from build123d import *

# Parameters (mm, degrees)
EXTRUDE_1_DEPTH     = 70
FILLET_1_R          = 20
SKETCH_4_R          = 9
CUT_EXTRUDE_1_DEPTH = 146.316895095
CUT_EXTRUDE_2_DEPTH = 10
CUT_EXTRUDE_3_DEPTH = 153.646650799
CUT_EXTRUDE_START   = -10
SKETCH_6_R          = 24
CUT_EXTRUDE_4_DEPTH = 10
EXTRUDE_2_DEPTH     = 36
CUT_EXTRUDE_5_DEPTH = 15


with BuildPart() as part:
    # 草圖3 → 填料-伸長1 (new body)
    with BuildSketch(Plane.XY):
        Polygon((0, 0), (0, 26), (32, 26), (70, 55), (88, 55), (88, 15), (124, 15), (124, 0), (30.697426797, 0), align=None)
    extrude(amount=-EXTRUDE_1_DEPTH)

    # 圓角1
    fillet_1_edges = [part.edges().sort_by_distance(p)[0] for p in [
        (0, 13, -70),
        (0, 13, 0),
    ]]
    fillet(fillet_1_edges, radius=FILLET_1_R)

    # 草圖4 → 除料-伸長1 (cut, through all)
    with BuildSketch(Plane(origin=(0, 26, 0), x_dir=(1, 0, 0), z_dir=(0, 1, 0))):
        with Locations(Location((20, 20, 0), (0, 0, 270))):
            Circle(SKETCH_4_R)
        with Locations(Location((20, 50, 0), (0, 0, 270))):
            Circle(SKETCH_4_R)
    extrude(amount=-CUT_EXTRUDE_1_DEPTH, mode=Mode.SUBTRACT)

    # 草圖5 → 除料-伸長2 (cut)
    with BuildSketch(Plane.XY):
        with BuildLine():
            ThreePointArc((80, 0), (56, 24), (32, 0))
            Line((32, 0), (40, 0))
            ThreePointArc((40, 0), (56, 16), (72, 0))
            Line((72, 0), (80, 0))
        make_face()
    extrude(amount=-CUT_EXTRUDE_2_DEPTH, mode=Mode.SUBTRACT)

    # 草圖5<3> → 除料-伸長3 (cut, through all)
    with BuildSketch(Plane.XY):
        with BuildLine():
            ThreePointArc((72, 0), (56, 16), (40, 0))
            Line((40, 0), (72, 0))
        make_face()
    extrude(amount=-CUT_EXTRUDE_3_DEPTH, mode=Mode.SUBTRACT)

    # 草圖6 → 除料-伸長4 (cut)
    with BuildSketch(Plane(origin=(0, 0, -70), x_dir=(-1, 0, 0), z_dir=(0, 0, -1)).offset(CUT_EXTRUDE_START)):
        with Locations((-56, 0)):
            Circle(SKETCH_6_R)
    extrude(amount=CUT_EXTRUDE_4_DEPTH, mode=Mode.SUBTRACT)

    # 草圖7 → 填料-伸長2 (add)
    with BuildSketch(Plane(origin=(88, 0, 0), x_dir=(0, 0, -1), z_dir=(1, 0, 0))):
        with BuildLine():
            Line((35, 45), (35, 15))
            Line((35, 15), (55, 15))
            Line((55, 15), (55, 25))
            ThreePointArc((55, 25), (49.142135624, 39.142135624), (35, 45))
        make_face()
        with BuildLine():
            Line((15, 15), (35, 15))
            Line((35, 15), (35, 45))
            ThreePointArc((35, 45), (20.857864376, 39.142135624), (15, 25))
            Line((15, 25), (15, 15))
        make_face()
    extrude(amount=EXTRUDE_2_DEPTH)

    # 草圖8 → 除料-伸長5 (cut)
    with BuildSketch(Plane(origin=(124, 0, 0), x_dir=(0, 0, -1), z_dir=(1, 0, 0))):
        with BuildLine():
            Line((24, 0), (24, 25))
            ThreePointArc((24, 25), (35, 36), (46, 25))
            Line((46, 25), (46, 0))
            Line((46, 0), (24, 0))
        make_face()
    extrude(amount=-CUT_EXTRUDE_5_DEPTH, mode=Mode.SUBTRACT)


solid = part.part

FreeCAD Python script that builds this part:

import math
import FreeCAD as App
import Part
import Sketcher

V = App.Vector
Q = App.Units.Quantity


def edges_at(feature, points):
    """Names of the edges that pass closest to the given points."""
    edges = feature.Shape.Edges
    near = lambda p: min(range(len(edges)), key=lambda i: edges[i].distToShape(Part.Vertex(*p))[0])
    return sorted({f"Edge{near(p) + 1}" for p in points})

doc = App.newDocument("Part")
body = doc.addObject("PartDesign::Body", "Body")

# Sketch on XY plane
sketch1 = doc.addObject("Sketcher::SketchObject", "Sketch")
body.addObject(sketch1)
sketch1.AttachmentSupport = (doc.XY_Plane, [""])
sketch1.MapMode = "FlatFace"
sketch1.addGeometry(Part.LineSegment(V(0, 26, 0), V(0, 0, 0)), False)
sketch1.addGeometry(Part.LineSegment(V(0, 0, 0), V(124, 0, 0)), False)
sketch1.addGeometry(Part.LineSegment(V(124, 0, 0), V(124, 15, 0)), False)
sketch1.addGeometry(Part.LineSegment(V(124, 15, 0), V(88, 15, 0)), False)
sketch1.addGeometry(Part.LineSegment(V(88, 15, 0), V(88, 55, 0)), False)
sketch1.addGeometry(Part.LineSegment(V(88, 55, 0), V(70, 55, 0)), False)
sketch1.addGeometry(Part.LineSegment(V(70, 55, 0), V(32, 26, 0)), False)
sketch1.addGeometry(Part.LineSegment(V(32, 26, 0), V(0, 26, 0)), False)
sketch1.addConstraint(Sketcher.Constraint("Coincident", 0, 2, 1, 1))
sketch1.addConstraint(Sketcher.Constraint("Coincident", 1, 2, 2, 1))
sketch1.addConstraint(Sketcher.Constraint("Coincident", 2, 2, 3, 1))
sketch1.addConstraint(Sketcher.Constraint("Coincident", 3, 2, 4, 1))
sketch1.addConstraint(Sketcher.Constraint("Coincident", 4, 2, 5, 1))
sketch1.addConstraint(Sketcher.Constraint("Coincident", 5, 2, 6, 1))
sketch1.addConstraint(Sketcher.Constraint("Coincident", 6, 2, 7, 1))
sketch1.addConstraint(Sketcher.Constraint("Coincident", 7, 2, 0, 1))
sketch1.addConstraint(Sketcher.Constraint("Vertical", 0))
sketch1.addConstraint(Sketcher.Constraint("Horizontal", 1))
sketch1.addConstraint(Sketcher.Constraint("Vertical", 2))
sketch1.addConstraint(Sketcher.Constraint("Horizontal", 3))
sketch1.addConstraint(Sketcher.Constraint("Vertical", 4))
sketch1.addConstraint(Sketcher.Constraint("Horizontal", 5))
sketch1.addConstraint(Sketcher.Constraint("Horizontal", 7))
sketch1.addConstraint(Sketcher.Constraint("Coincident", 0, 2, -1, 1))
sketch1.addConstraint(Sketcher.Constraint("DistanceX", 1, 1, 1, 2, Q("124 mm")))
sketch1.addConstraint(Sketcher.Constraint("DistanceX", 3, 2, 3, 1, Q("36 mm")))
sketch1.addConstraint(Sketcher.Constraint("DistanceX", 5, 2, 5, 1, Q("18 mm")))
sketch1.addConstraint(Sketcher.Constraint("DistanceX", 7, 2, 7, 1, Q("32 mm")))
sketch1.addConstraint(Sketcher.Constraint("DistanceY", 0, 2, 0, 1, Q("26 mm")))
sketch1.addConstraint(Sketcher.Constraint("DistanceY", 2, 1, 2, 2, Q("15 mm")))
sketch1.addConstraint(Sketcher.Constraint("DistanceY", 4, 1, 4, 2, Q("40 mm")))
pad1 = doc.addObject("PartDesign::Pad", "Pad")
body.addObject(pad1)
pad1.Profile = sketch1
pad1.Length = 70
pad1.Reversed = True
doc.recompute()

fillet = doc.addObject("PartDesign::Fillet", "Fillet")
body.addObject(fillet)
fillet.Base = (pad1, edges_at(pad1, [(0, 13, -70), (0, 13, 0)]))
fillet.Radius = 20

# Sketch on XZ plane
sketch2 = doc.addObject("Sketcher::SketchObject", "Sketch001")
body.addObject(sketch2)
sketch2.AttachmentSupport = (doc.XZ_Plane, [""])
sketch2.MapMode = "FlatFace"
sketch2.AttachmentOffset = App.Placement(V(0, 0, -26), App.Rotation())
sketch2.addGeometry(Part.Circle(V(20, -20, 0), V(0, 0, 1), 9), False)
sketch2.addGeometry(Part.Circle(V(20, -50, 0), V(0, 0, 1), 9), False)
sketch2.addConstraint(Sketcher.Constraint("Equal", 0, 1))
sketch2.addConstraint(Sketcher.Constraint("Vertical", 0, 3, 1, 3))
sketch2.addConstraint(Sketcher.Constraint("Diameter", 0, Q("18 mm")))
sketch2.addConstraint(Sketcher.Constraint("DistanceX", -1, 1, 0, 3, Q("20 mm")))
sketch2.addConstraint(Sketcher.Constraint("DistanceY", 0, 3, -1, 1, Q("20 mm")))
sketch2.addConstraint(Sketcher.Constraint("DistanceY", 1, 3, -1, 1, Q("50 mm")))
pocket1 = doc.addObject("PartDesign::Pocket", "Pocket")
body.addObject(pocket1)
pocket1.Profile = sketch2
pocket1.Type = "ThroughAll"
pocket1.Reversed = True

# Sketch on XY plane
sketch3 = doc.addObject("Sketcher::SketchObject", "Sketch002")
body.addObject(sketch3)
sketch3.AttachmentSupport = (doc.XY_Plane, [""])
sketch3.MapMode = "FlatFace"
sketch3.addGeometry(Part.ArcOfCircle(Part.Circle(V(56, 0, 0), V(0, 0, 1), 24), math.radians(0), math.radians(180)), False)
sketch3.addGeometry(Part.LineSegment(V(32, 0, 0), V(40, 0, 0)), False)
sketch3.addGeometry(Part.ArcOfCircle(Part.Circle(V(56, 0, 0), V(0, 0, 1), 16), math.radians(0), math.radians(180)), False)
sketch3.addGeometry(Part.LineSegment(V(72, 0, 0), V(80, 0, 0)), False)
sketch3.addConstraint(Sketcher.Constraint("Coincident", 0, 2, 1, 1))
sketch3.addConstraint(Sketcher.Constraint("Coincident", 1, 2, 2, 2))
sketch3.addConstraint(Sketcher.Constraint("Coincident", 2, 1, 3, 1))
sketch3.addConstraint(Sketcher.Constraint("Coincident", 3, 2, 0, 1))
sketch3.addConstraint(Sketcher.Constraint("Horizontal", 1))
sketch3.addConstraint(Sketcher.Constraint("Horizontal", 3))
sketch3.addConstraint(Sketcher.Constraint("Coincident", 2, 3, 0, 3))
sketch3.addConstraint(Sketcher.Constraint("PointOnObject", 0, 3, -1))
sketch3.addConstraint(Sketcher.Constraint("PointOnObject", 0, 2, -1))
sketch3.addConstraint(Sketcher.Constraint("PointOnObject", 2, 1, -1))
sketch3.addConstraint(Sketcher.Constraint("Radius", 0, Q("24 mm")))
sketch3.addConstraint(Sketcher.Constraint("Radius", 2, Q("16 mm")))
sketch3.addConstraint(Sketcher.Constraint("DistanceX", -1, 1, 0, 3, Q("56 mm")))
pocket2 = doc.addObject("PartDesign::Pocket", "Pocket001")
body.addObject(pocket2)
pocket2.Profile = sketch3
pocket2.Length = 10

# Sketch on XY plane
sketch4 = doc.addObject("Sketcher::SketchObject", "Sketch003")
body.addObject(sketch4)
sketch4.AttachmentSupport = (doc.XY_Plane, [""])
sketch4.MapMode = "FlatFace"
sketch4.addGeometry(Part.ArcOfCircle(Part.Circle(V(56, 0, 0), V(0, 0, 1), 16), math.radians(0), math.radians(180)), False)
sketch4.addGeometry(Part.LineSegment(V(40, 0, 0), V(72, 0, 0)), False)
sketch4.addConstraint(Sketcher.Constraint("Coincident", 0, 1, 1, 2))
sketch4.addConstraint(Sketcher.Constraint("Coincident", 1, 1, 0, 2))
sketch4.addConstraint(Sketcher.Constraint("Horizontal", 1))
sketch4.addConstraint(Sketcher.Constraint("PointOnObject", 0, 3, -1))
sketch4.addConstraint(Sketcher.Constraint("PointOnObject", 0, 1, -1))
sketch4.addConstraint(Sketcher.Constraint("Radius", 0, Q("16 mm")))
sketch4.addConstraint(Sketcher.Constraint("DistanceX", -1, 1, 0, 3, Q("56 mm")))
pocket3 = doc.addObject("PartDesign::Pocket", "Pocket002")
body.addObject(pocket3)
pocket3.Profile = sketch4
pocket3.Type = "ThroughAll"

# Sketch on XY plane
sketch5 = doc.addObject("Sketcher::SketchObject", "Sketch004")
body.addObject(sketch5)
sketch5.AttachmentSupport = (doc.XY_Plane, [""])
sketch5.MapMode = "FlatFace"
sketch5.AttachmentOffset = App.Placement(V(0, 0, -60), App.Rotation())
sketch5.addGeometry(Part.Circle(V(56, 0, 0), V(0, 0, 1), 24), False)
sketch5.addConstraint(Sketcher.Constraint("PointOnObject", 0, 3, -1))
sketch5.addConstraint(Sketcher.Constraint("Diameter", 0, Q("48 mm")))
sketch5.addConstraint(Sketcher.Constraint("DistanceX", -1, 1, 0, 3, Q("56 mm")))
pocket4 = doc.addObject("PartDesign::Pocket", "Pocket003")
body.addObject(pocket4)
pocket4.Profile = sketch5
pocket4.Length = 10

# Sketch on YZ plane
sketch6 = doc.addObject("Sketcher::SketchObject", "Sketch005")
body.addObject(sketch6)
sketch6.AttachmentSupport = (doc.YZ_Plane, [""])
sketch6.MapMode = "FlatFace"
sketch6.AttachmentOffset = App.Placement(V(0, 0, 88), App.Rotation())
sketch6.addGeometry(Part.LineSegment(V(15, -55, 0), V(25, -55, 0)), False)
sketch6.addGeometry(Part.ArcOfCircle(Part.Circle(V(25, -35, 0), V(0, 0, 1), 20), math.radians(-90), math.radians(0)), False)
sketch6.addGeometry(Part.ArcOfCircle(Part.Circle(V(25, -35, 0), V(0, 0, 1), 20), math.radians(0), math.radians(90)), False)
sketch6.addGeometry(Part.LineSegment(V(25, -15, 0), V(15, -15, 0)), False)
sketch6.addGeometry(Part.LineSegment(V(15, -15, 0), V(15, -55, 0)), False)
sketch6.addConstraint(Sketcher.Constraint("Tangent", 0, 2, 1, 1))
sketch6.addConstraint(Sketcher.Constraint("Tangent", 1, 2, 2, 1))
sketch6.addConstraint(Sketcher.Constraint("Tangent", 2, 2, 3, 1))
sketch6.addConstraint(Sketcher.Constraint("Coincident", 3, 2, 4, 1))
sketch6.addConstraint(Sketcher.Constraint("Coincident", 4, 2, 0, 1))
sketch6.addConstraint(Sketcher.Constraint("Horizontal", 0))
sketch6.addConstraint(Sketcher.Constraint("Horizontal", 3))
sketch6.addConstraint(Sketcher.Constraint("Vertical", 4))
sketch6.addConstraint(Sketcher.Constraint("Equal", 1, 2))
sketch6.addConstraint(Sketcher.Constraint("Horizontal", 2, 3, 1, 2))
sketch6.addConstraint(Sketcher.Constraint("Radius", 1, Q("20 mm")))
sketch6.addConstraint(Sketcher.Constraint("DistanceX", 0, 1, 0, 2, Q("10 mm")))
sketch6.addConstraint(Sketcher.Constraint("DistanceX", -1, 1, 1, 3, Q("25 mm")))
sketch6.addConstraint(Sketcher.Constraint("DistanceY", 1, 3, -1, 1, Q("35 mm")))
pad2 = doc.addObject("PartDesign::Pad", "Pad001")
body.addObject(pad2)
pad2.Profile = sketch6
pad2.Length = 36

# Sketch on YZ plane
sketch7 = doc.addObject("Sketcher::SketchObject", "Sketch006")
body.addObject(sketch7)
sketch7.AttachmentSupport = (doc.YZ_Plane, [""])
sketch7.MapMode = "FlatFace"
sketch7.AttachmentOffset = App.Placement(V(0, 0, 124), App.Rotation())
sketch7.addGeometry(Part.LineSegment(V(25, -24, 0), V(0, -24, 0)), False)
sketch7.addGeometry(Part.LineSegment(V(0, -24, 0), V(0, -46, 0)), False)
sketch7.addGeometry(Part.LineSegment(V(0, -46, 0), V(25, -46, 0)), False)
sketch7.addGeometry(Part.ArcOfCircle(Part.Circle(V(25, -35, 0), V(0, 0, 1), 11), math.radians(-90), math.radians(90)), False)
sketch7.addConstraint(Sketcher.Constraint("Coincident", 0, 2, 1, 1))
sketch7.addConstraint(Sketcher.Constraint("Coincident", 1, 2, 2, 1))
sketch7.addConstraint(Sketcher.Constraint("Tangent", 2, 2, 3, 1))
sketch7.addConstraint(Sketcher.Constraint("Tangent", 3, 2, 0, 1))
sketch7.addConstraint(Sketcher.Constraint("Horizontal", 0))
sketch7.addConstraint(Sketcher.Constraint("Vertical", 1))
sketch7.addConstraint(Sketcher.Constraint("Horizontal", 2))
sketch7.addConstraint(Sketcher.Constraint("PointOnObject", 0, 2, -2))
sketch7.addConstraint(Sketcher.Constraint("Radius", 3, Q("11 mm")))
sketch7.addConstraint(Sketcher.Constraint("DistanceX", 0, 2, 0, 1, Q("25 mm")))
sketch7.addConstraint(Sketcher.Constraint("DistanceY", 3, 3, -1, 1, Q("35 mm")))
pocket5 = doc.addObject("PartDesign::Pocket", "Pocket004")
body.addObject(pocket5)
pocket5.Profile = sketch7
pocket5.Length = 15

doc.recompute()
